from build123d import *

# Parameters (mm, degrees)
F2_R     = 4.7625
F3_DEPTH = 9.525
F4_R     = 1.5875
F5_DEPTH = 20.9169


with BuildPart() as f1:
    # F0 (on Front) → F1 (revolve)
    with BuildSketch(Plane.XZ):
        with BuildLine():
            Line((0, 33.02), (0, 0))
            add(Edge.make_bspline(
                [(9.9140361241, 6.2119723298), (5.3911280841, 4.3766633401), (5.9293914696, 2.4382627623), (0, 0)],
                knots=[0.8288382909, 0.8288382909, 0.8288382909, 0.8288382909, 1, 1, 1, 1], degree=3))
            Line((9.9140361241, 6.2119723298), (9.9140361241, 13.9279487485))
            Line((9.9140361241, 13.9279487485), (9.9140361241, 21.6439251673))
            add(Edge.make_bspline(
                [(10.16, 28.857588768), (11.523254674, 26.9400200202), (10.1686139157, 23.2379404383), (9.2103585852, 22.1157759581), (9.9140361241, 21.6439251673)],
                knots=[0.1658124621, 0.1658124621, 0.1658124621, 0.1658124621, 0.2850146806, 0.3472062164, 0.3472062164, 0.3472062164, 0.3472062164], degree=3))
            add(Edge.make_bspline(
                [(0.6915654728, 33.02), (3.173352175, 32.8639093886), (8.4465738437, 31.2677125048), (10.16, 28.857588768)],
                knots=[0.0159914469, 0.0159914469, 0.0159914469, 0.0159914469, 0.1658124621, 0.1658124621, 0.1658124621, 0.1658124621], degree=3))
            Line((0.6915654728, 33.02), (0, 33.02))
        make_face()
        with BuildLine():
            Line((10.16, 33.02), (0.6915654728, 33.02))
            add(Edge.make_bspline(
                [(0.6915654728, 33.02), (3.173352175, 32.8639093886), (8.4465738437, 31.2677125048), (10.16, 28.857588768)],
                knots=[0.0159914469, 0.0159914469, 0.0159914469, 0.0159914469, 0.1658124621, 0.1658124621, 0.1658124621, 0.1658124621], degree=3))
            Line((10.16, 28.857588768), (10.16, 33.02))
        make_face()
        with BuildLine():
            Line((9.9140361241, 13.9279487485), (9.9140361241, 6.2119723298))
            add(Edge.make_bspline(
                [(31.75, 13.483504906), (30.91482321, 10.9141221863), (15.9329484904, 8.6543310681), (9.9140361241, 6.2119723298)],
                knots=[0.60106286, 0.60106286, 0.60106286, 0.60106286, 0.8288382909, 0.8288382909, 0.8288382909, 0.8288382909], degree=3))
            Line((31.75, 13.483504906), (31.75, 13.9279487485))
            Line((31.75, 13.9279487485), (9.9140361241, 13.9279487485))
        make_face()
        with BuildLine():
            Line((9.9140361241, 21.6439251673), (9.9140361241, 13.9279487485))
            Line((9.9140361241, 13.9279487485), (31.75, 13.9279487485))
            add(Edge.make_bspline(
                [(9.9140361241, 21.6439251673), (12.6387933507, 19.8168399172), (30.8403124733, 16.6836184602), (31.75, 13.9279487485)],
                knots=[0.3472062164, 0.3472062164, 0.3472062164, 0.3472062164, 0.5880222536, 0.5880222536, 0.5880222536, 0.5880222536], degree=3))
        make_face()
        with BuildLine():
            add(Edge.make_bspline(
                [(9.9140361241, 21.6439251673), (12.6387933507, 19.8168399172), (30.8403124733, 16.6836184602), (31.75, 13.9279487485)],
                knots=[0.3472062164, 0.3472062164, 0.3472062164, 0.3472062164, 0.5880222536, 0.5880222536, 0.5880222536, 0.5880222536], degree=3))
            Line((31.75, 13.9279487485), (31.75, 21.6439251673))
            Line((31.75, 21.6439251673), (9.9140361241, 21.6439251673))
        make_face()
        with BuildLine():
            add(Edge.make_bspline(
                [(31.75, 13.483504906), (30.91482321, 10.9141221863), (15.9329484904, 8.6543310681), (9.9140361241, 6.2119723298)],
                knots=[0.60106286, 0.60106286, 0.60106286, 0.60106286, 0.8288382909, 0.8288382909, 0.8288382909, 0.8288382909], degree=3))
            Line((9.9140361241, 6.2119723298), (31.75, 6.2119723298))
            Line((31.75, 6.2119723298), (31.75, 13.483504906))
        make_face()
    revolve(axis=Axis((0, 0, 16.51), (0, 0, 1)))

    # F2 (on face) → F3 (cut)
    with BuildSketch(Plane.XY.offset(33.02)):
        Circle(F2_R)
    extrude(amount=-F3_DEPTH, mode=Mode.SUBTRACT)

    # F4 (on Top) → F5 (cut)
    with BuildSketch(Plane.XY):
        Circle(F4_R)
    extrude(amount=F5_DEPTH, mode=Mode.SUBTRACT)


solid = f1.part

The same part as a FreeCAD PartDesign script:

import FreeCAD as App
import Part
import Sketcher
from FreeCAD import Vector
Q = App.Units.Quantity

doc = App.newDocument("Part")
params = doc.addObject("Spreadsheet::Sheet", "Params")
for row, (alias, value) in enumerate([
    ("sketch1_height", "1.3 in"),
    ("revolution_angle", "360 deg"),
    ("sketch2_diameter", "0.375 in"),
    ("pocket1_length", "0.375 in"),
    ("sketch3_diameter", "0.125 in"),
    ("pocket2_length", "0.8235 in"),
], start=1):
    params.set(f"A{row}", alias)
    params.set(f"B{row}", "=" + value)
    params.setAlias(f"B{row}", alias)

body = doc.addObject("PartDesign::Body", "Body")

# Sketch on XZ plane
sketch1 = body.newObject("Sketcher::SketchObject", "Sketch")
sketch1.AttachmentSupport = (doc.getObject("XZ_Plane"), [""])
sketch1.MapMode = "FlatFace"
sketch1.addGeometry([
    Part.LineSegment(Vector(0, 33.02, 0), Vector(0, 0, 0)),  # 0
    Part.BSplineCurve([Vector(9.914036, 6.211972, 0), Vector(5.391128, 4.376663, 0), Vector(5.929391, 2.438263, 0), Vector(0, 0, 0)], [4, 4], [0.828838291, 1], False, 3, [1, 1, 1, 1], False),  # 1
    Part.LineSegment(Vector(9.914036, 6.211972, 0), Vector(31.75, 6.211972, 0)),  # 2
    Part.LineSegment(Vector(31.75, 6.211972, 0), Vector(31.75, 21.643925, 0)),  # 3
    Part.LineSegment(Vector(31.75, 21.643925, 0), Vector(9.914036, 21.643925, 0)),  # 4
    Part.BSplineCurve([Vector(10.16, 28.857589, 0), Vector(11.523255, 26.94002, 0), Vector(10.168614, 23.23794, 0), Vector(9.210359, 22.115776, 0), Vector(9.914036, 21.643925, 0)], [4, 1, 4], [0.165812462, 0.285014681, 0.347206216], False, 3, [1, 1, 1, 1, 1], False),  # 5
    Part.LineSegment(Vector(10.16, 28.857589, 0), Vector(10.16, 33.02, 0)),  # 6
    Part.LineSegment(Vector(10.16, 33.02, 0), Vector(0, 33.02, 0)),  # 7
], False)
sketch1.addConstraint([
    Sketcher.Constraint("Block", 1),
    Sketcher.Constraint("Block", 5),
    Sketcher.Constraint("Coincident", 0, 2, 1, 2),
    Sketcher.Constraint("Coincident", 1, 1, 2, 1),
    Sketcher.Constraint("Coincident", 2, 2, 3, 1),
    Sketcher.Constraint("Coincident", 3, 2, 4, 1),
    Sketcher.Constraint("Coincident", 4, 2, 5, 2),
    Sketcher.Constraint("Coincident", 5, 1, 6, 1),
    Sketcher.Constraint("Coincident", 6, 2, 7, 1),
    Sketcher.Constraint("Coincident", 7, 2, 0, 1),
    Sketcher.Constraint("Vertical", 0),
    Sketcher.Constraint("Horizontal", 2),
    Sketcher.Constraint("Vertical", 3),
    Sketcher.Constraint("Horizontal", 4),
    Sketcher.Constraint("Vertical", 6),
    Sketcher.Constraint("Horizontal", 7),
    Sketcher.Constraint("DistanceY", 0, 2, 0, 1, Q("1.3 in")),
    Sketcher.Constraint("DistanceX", -1, 1, 2, 2, Q("1.25 in")),
])
sketch1.setExpression("Constraints[16]", "Params.sketch1_height")
revolution = body.newObject("PartDesign::Revolution", "Revolution")
revolution.Profile = sketch1
revolution.ReferenceAxis = (sketch1, ["V_Axis"])
revolution.setExpression("Angle", "Params.revolution_angle")

# Sketch on XY plane
sketch2 = body.newObject("Sketcher::SketchObject", "Sketch001")
sketch2.AttachmentSupport = (doc.getObject("XY_Plane"), [""])
sketch2.MapMode = "FlatFace"
sketch2.AttachmentOffset = App.Placement(Vector(0, 0, 1.3 * 25.4), App.Rotation())
sketch2.addGeometry(Part.Circle(Vector(0, 0, 0), Vector(0, 0, 1), 4.7625), False)
sketch2.addConstraint([
    Sketcher.Constraint("Coincident", 0, 3, -1, 1),
    Sketcher.Constraint("Diameter", 0, Q("0.375 in")),
])
sketch2.setExpression("Constraints[1]", "Params.sketch2_diameter")
pocket1 = body.newObject("PartDesign::Pocket", "Pocket")
pocket1.Profile = sketch2
pocket1.setExpression("Length", "Params.pocket1_length")

# Sketch on XY plane
sketch3 = body.newObject("Sketcher::SketchObject", "Sketch002")
sketch3.AttachmentSupport = (doc.getObject("XY_Plane"), [""])
sketch3.MapMode = "FlatFace"
sketch3.addGeometry(Part.Circle(Vector(0, 0, 0), Vector(0, 0, 1), 1.5875), False)
sketch3.addConstraint([
    Sketcher.Constraint("Coincident", 0, 3, -1, 1),
    Sketcher.Constraint("Diameter", 0, Q("0.125 in")),
])
sketch3.setExpression("Constraints[1]", "Params.sketch3_diameter")
pocket2 = body.newObject("PartDesign::Pocket", "Pocket001")
pocket2.Profile = sketch3
pocket2.setExpression("Length", "Params.pocket2_length")
pocket2.Reversed = True

doc.recompute()
